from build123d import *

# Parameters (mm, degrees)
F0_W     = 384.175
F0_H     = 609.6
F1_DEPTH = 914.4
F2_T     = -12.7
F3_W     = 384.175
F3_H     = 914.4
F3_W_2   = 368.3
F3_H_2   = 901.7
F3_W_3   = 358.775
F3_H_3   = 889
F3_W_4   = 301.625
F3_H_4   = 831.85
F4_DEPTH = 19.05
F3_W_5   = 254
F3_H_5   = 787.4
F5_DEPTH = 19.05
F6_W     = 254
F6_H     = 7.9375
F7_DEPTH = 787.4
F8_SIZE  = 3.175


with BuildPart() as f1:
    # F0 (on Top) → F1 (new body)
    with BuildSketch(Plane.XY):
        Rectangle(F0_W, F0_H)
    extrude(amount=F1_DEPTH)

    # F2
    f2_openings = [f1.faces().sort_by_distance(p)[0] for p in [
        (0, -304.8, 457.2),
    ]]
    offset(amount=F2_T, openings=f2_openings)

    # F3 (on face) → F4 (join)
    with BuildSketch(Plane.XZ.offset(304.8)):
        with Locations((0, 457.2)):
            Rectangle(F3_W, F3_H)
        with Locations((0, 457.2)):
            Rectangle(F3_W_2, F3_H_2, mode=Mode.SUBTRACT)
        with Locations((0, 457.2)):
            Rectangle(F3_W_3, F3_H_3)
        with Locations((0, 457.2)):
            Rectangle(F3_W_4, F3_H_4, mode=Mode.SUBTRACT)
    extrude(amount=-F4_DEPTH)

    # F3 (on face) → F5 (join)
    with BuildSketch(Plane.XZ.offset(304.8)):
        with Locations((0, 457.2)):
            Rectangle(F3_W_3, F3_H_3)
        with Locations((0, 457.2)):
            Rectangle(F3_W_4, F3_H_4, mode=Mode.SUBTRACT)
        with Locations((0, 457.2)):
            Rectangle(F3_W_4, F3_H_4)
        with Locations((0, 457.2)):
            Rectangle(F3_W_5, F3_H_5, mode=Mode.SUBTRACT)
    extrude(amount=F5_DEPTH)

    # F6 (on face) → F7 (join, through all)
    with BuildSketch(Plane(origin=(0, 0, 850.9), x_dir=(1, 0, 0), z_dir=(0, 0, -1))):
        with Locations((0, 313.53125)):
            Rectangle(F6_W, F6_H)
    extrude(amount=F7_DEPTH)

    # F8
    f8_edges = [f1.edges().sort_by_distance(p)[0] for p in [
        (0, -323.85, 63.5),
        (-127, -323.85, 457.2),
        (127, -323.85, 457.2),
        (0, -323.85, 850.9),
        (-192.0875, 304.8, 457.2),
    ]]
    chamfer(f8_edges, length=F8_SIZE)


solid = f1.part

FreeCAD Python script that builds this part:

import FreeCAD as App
import Part
import Sketcher
Q = App.Units.Quantity


def edges_at(feature, points):
    """Names of the edges that pass closest to the given points."""
    edges = feature.Shape.Edges
    near = lambda p: min(range(len(edges)), key=lambda i: edges[i].distToShape(Part.Vertex(*p))[0])
    return sorted({f"Edge{near(p) + 1}" for p in points})


def faces_at(feature, points):
    """Names of the faces that lie closest to the given points."""
    faces = feature.Shape.Faces
    near = lambda p: min(range(len(faces)), key=lambda i: faces[i].distToShape(Part.Vertex(*p))[0])
    return sorted({f"Face{near(p) + 1}" for p in points})

doc = App.newDocument("Part")
params = doc.addObject("Spreadsheet::Sheet", "Params")
for row, (alias, value) in enumerate([
    ("sketch1_height", "24 in"),
    ("sketch1_width", "15.125 in"),
    ("pad1_length", "36 in"),
    ("thickness_wall", "0.5 in"),
    ("sketch2_height", "36 in"),
    ("sketch2_height2", "35 in"),
    ("sketch2_width", "14.5 in"),
    ("sketch2_height3", "35.5 in"),
    ("sketch2_height4", "32.75 in"),
    ("pad2_length", "0.75 in"),
    ("sketch3_width", "10 in"),
    ("sketch3_height", "35 in"),
    ("sketch3_height2", "31 in"),
    ("sketch3_width2", "14.125 in"),
    ("pad3_length", "0.75 in"),
    ("sketch4_width", "10 in"),
    ("sketch4_height", "0.3125 in"),
    ("chamfer_size", "0.125 in"),
], start=1):
    params.set(f"A{row}", alias)
    params.set(f"B{row}", "=" + value)
    params.setAlias(f"B{row}", alias)

body = doc.addObject("PartDesign::Body", "Body")

# Sketch on XY plane
sketch1 = doc.addObject("Sketcher::SketchObject", "Sketch")
body.addObject(sketch1)
sketch1.AttachmentSupport = (doc.XY_Plane, [""])
sketch1.MapMode = "FlatFace"
sketch1.addGeometry(Part.LineSegment(App.Vector(-192, 305, 0), App.Vector(-192, -305, 0)), False)
sketch1.addGeometry(Part.LineSegment(App.Vector(-192, -305, 0), App.Vector(192, -305, 0)), False)
sketch1.addGeometry(Part.LineSegment(App.Vector(192, -305, 0), App.Vector(192, 305, 0)), False)
sketch1.addGeometry(Part.LineSegment(App.Vector(192, 305, 0), App.Vector(-192, 305, 0)), False)
sketch1.addConstraint(Sketcher.Constraint("Coincident", 0, 2, 1, 1))
sketch1.addConstraint(Sketcher.Constraint("Coincident", 1, 2, 2, 1))
sketch1.addConstraint(Sketcher.Constraint("Coincident", 2, 2, 3, 1))
sketch1.addConstraint(Sketcher.Constraint("Coincident", 3, 2, 0, 1))
sketch1.addConstraint(Sketcher.Constraint("Vertical", 0))
sketch1.addConstraint(Sketcher.Constraint("Horizontal", 1))
sketch1.addConstraint(Sketcher.Constraint("Vertical", 2))
sketch1.addConstraint(Sketcher.Constraint("Horizontal", 3))
sketch1.addConstraint(Sketcher.Constraint("Symmetric", 0, 2, 2, 2, -1, 1))
sketch1.addConstraint(Sketcher.Constraint("DistanceY", 0, 2, 0, 1, Q("24 in")))
sketch1.addConstraint(Sketcher.Constraint("DistanceX", 1, 1, 1, 2, Q("15.125 in")))
sketch1.setExpression("Constraints[9]", "Params.sketch1_height")
sketch1.setExpression("Constraints[10]", "Params.sketch1_width")
pad1 = doc.addObject("PartDesign::Pad", "Pad")
body.addObject(pad1)
pad1.Profile = sketch1
pad1.setExpression("Length", "Params.pad1_length")
doc.recompute()

thickness = doc.addObject("PartDesign::Thickness", "Thickness")
body.addObject(thickness)
thickness.Base = (pad1, faces_at(pad1, [(0, -304.8, 457.2)]))
thickness.setExpression("Value", "Params.thickness_wall")
thickness.Reversed = True
thickness.Join = "Arc"

# Sketch on XZ plane
sketch2 = doc.addObject("Sketcher::SketchObject", "Sketch001")
body.addObject(sketch2)
sketch2.AttachmentSupport = (doc.XZ_Plane, [""])
sketch2.MapMode = "FlatFace"
sketch2.AttachmentOffset = App.Placement(App.Vector(0, 0, 12 * 25.4), App.Rotation())
sketch2.addGeometry(Part.LineSegment(App.Vector(-192, 914, 0), App.Vector(-192, 0, 0)), False)
sketch2.addGeometry(Part.LineSegment(App.Vector(-192, 0, 0), App.Vector(192, 0, 0)), False)
sketch2.addGeometry(Part.LineSegment(App.Vector(192, 0, 0), App.Vector(192, 914, 0)), False)
sketch2.addGeometry(Part.LineSegment(App.Vector(192, 914, 0), App.Vector(-192, 914, 0)), False)
sketch2.addGeometry(Part.LineSegment(App.Vector(184, 6, 0), App.Vector(-184, 6, 0)), False)
sketch2.addGeometry(Part.LineSegment(App.Vector(-184, 6, 0), App.Vector(-184, 908, 0)), False)
sketch2.addGeometry(Part.LineSegment(App.Vector(-184, 908, 0), App.Vector(184, 908, 0)), False)
sketch2.addGeometry(Part.LineSegment(App.Vector(184, 908, 0), App.Vector(184, 6, 0)), False)
sketch2.addGeometry(Part.LineSegment(App.Vector(-179, 902, 0), App.Vector(-179, 13, 0)), False)
sketch2.addGeometry(Part.LineSegment(App.Vector(-179, 13, 0), App.Vector(179, 13, 0)), False)
sketch2.addGeometry(Part.LineSegment(App.Vector(179, 13, 0), App.Vector(179, 902, 0)), False)
sketch2.addGeometry(Part.LineSegment(App.Vector(179, 902, 0), App.Vector(-179, 902, 0)), False)
sketch2.addGeometry(Part.LineSegment(App.Vector(151, 41, 0), App.Vector(-151, 41, 0)), False)
sketch2.addGeometry(Part.LineSegment(App.Vector(-151, 41, 0), App.Vector(-151, 873, 0)), False)
sketch2.addGeometry(Part.LineSegment(App.Vector(-151, 873, 0), App.Vector(151, 873, 0)), False)
sketch2.addGeometry(Part.LineSegment(App.Vector(151, 873, 0), App.Vector(151, 41, 0)), False)
sketch2.addConstraint(Sketcher.Constraint("Coincident", 0, 2, 1, 1))
sketch2.addConstraint(Sketcher.Constraint("Coincident", 1, 2, 2, 1))
sketch2.addConstraint(Sketcher.Constraint("Coincident", 2, 2, 3, 1))
sketch2.addConstraint(Sketcher.Constraint("Coincident", 3, 2, 0, 1))
sketch2.addConstraint(Sketcher.Constraint("Coincident", 4, 2, 5, 1))
sketch2.addConstraint(Sketcher.Constraint("Coincident", 5, 2, 6, 1))
sketch2.addConstraint(Sketcher.Constraint("Coincident", 6, 2, 7, 1))
sketch2.addConstraint(Sketcher.Constraint("Coincident", 7, 2, 4, 1))
sketch2.addConstraint(Sketcher.Constraint("Coincident", 8, 2, 9, 1))
sketch2.addConstraint(Sketcher.Constraint("Coincident", 9, 2, 10, 1))
sketch2.addConstraint(Sketcher.Constraint("Coincident", 10, 2, 11, 1))
sketch2.addConstraint(Sketcher.Constraint("Coincident", 11, 2, 8, 1))
sketch2.addConstraint(Sketcher.Constraint("Coincident", 12, 2, 13, 1))
sketch2.addConstraint(Sketcher.Constraint("Coincident", 13, 2, 14, 1))
sketch2.addConstraint(Sketcher.Constraint("Coincident", 14, 2, 15, 1))
sketch2.addConstraint(Sketcher.Constraint("Coincident", 15, 2, 12, 1))
sketch2.addConstraint(Sketcher.Constraint("Vertical", 0))
sketch2.addConstraint(Sketcher.Constraint("Horizontal", 1))
sketch2.addConstraint(Sketcher.Constraint("Vertical", 2))
sketch2.addConstraint(Sketcher.Constraint("Horizontal", 3))
sketch2.addConstraint(Sketcher.Constraint("Horizontal", 4))
sketch2.addConstraint(Sketcher.Constraint("Vertical", 5))
sketch2.addConstraint(Sketcher.Constraint("Horizontal", 6))
sketch2.addConstraint(Sketcher.Constraint("Vertical", 7))
sketch2.addConstraint(Sketcher.Constraint("Vertical", 8))
sketch2.addConstraint(Sketcher.Constraint("Horizontal", 9))
sketch2.addConstraint(Sketcher.Constraint("Vertical", 10))
sketch2.addConstraint(Sketcher.Constraint("Horizontal", 11))
sketch2.addConstraint(Sketcher.Constraint("Horizontal", 12))
sketch2.addConstraint(Sketcher.Constraint("Vertical", 13))
sketch2.addConstraint(Sketcher.Constraint("Horizontal", 14))
sketch2.addConstraint(Sketcher.Constraint("Vertical", 15))
sketch2.addConstraint(Sketcher.Constraint("Symmetric", 0, 2, 1, 2, -1, 1))
sketch2.addConstraint(Sketcher.Constraint("DistanceY", 0, 2, 0, 1, Q("36 in")))
sketch2.addConstraint(Sketcher.Constraint("DistanceY", 8, 2, 8, 1, Q("35 in")))
sketch2.addConstraint(Sketcher.Constraint("DistanceX", 4, 2, 4, 1, Q("14.5 in")))
sketch2.addConstraint(Sketcher.Constraint("DistanceY", 5, 1, 5, 2, Q("35.5 in")))
sketch2.addConstraint(Sketcher.Constraint("DistanceX", 12, 2, 9, 2, Q("13 in")))
sketch2.addConstraint(Sketcher.Constraint("DistanceX", 11, 2, 14, 2, Q("13 in")))
sketch2.addConstraint(Sketcher.Constraint("DistanceY", 13, 1, 13, 2, Q("32.75 in")))
sketch2.addConstraint(Sketcher.Constraint("DistanceY", -1, 1, 8, 2, Q("0.5 in")))
sketch2.addConstraint(Sketcher.Constraint("DistanceX", 0, 2, 8, 2, Q("0.5 in")))
sketch2.addConstraint(Sketcher.Constraint("DistanceX", 9, 2, 1, 2, Q("0.5 in")))
sketch2.addConstraint(Sketcher.Constraint("DistanceX", 1, 1, 1, 2, Q("15.125 in")))
sketch2.addConstraint(Sketcher.Constraint("DistanceX", 4, 2, -1, 1, Q("7.25 in")))
sketch2.addConstraint(Sketcher.Constraint("DistanceY", -1, 1, 4, 2, Q("0.25 in")))
sketch2.addConstraint(Sketcher.Constraint("DistanceY", -1, 1, 12, 2, Q("1.625 in")))
sketch2.setExpression("Constraints[33]", "Params.sketch2_height")
sketch2.setExpression("Constraints[34]", "Params.sketch2_height2")
sketch2.setExpression("Constraints[35]", "Params.sketch2_width")
sketch2.setExpression("Constraints[36]", "Params.sketch2_height3")
sketch2.setExpression("Constraints[39]", "Params.sketch2_height4")
pad2 = doc.addObject("PartDesign::Pad", "Pad001")
body.addObject(pad2)
pad2.Profile = sketch2
pad2.setExpression("Length", "Params.pad2_length")
pad2.Reversed = True

# Sketch on XZ plane
sketch3 = doc.addObject("Sketcher::SketchObject", "Sketch002")
body.addObject(sketch3)
sketch3.AttachmentSupport = (doc.XZ_Plane, [""])
sketch3.MapMode = "FlatFace"
sketch3.AttachmentOffset = App.Placement(App.Vector(0, 0, 12 * 25.4), App.Rotation())
sketch3.addGeometry(Part.LineSegment(App.Vector(-179, 902, 0), App.Vector(-179, 13, 0)), False)
sketch3.addGeometry(Part.LineSegment(App.Vector(-179, 13, 0), App.Vector(179, 13, 0)), False)
sketch3.addGeometry(Part.LineSegment(App.Vector(179, 13, 0), App.Vector(179, 902, 0)), False)
sketch3.addGeometry(Part.LineSegment(App.Vector(179, 902, 0), App.Vector(-179, 902, 0)), False)
sketch3.addGeometry(Part.LineSegment(App.Vector(127, 64, 0), App.Vector(-127, 64, 0)), False)
sketch3.addGeometry(Part.LineSegment(App.Vector(-127, 64, 0), App.Vector(-127, 851, 0)), False)
sketch3.addGeometry(Part.LineSegment(App.Vector(-127, 851, 0), App.Vector(127, 851, 0)), False)
sketch3.addGeometry(Part.LineSegment(App.Vector(127, 851, 0), App.Vector(127, 64, 0)), False)
sketch3.addConstraint(Sketcher.Constraint("Coincident", 0, 2, 1, 1))
sketch3.addConstraint(Sketcher.Constraint("Coincident", 1, 2, 2, 1))
sketch3.addConstraint(Sketcher.Constraint("Coincident", 2, 2, 3, 1))
sketch3.addConstraint(Sketcher.Constraint("Coincident", 3, 2, 0, 1))
sketch3.addConstraint(Sketcher.Constraint("Coincident", 4, 2, 5, 1))
sketch3.addConstraint(Sketcher.Constraint("Coincident", 5, 2, 6, 1))
sketch3.addConstraint(Sketcher.Constraint("Coincident", 6, 2, 7, 1))
sketch3.addConstraint(Sketcher.Constraint("Coincident", 7, 2, 4, 1))
sketch3.addConstraint(Sketcher.Constraint("Vertical", 0))
sketch3.addConstraint(Sketcher.Constraint("Horizontal", 1))
sketch3.addConstraint(Sketcher.Constraint("Vertical", 2))
sketch3.addConstraint(Sketcher.Constraint("Horizontal", 3))
sketch3.addConstraint(Sketcher.Constraint("Horizontal", 4))
sketch3.addConstraint(Sketcher.Constraint("Vertical", 5))
sketch3.addConstraint(Sketcher.Constraint("Horizontal", 6))
sketch3.addConstraint(Sketcher.Constraint("Vertical", 7))
sketch3.addConstraint(Sketcher.Constraint("DistanceX", 4, 2, 4, 1, Q("10 in")))
sketch3.addConstraint(Sketcher.Constraint("DistanceY", 0, 2, 0, 1, Q("35 in")))
sketch3.addConstraint(Sketcher.Constraint("DistanceY", 5, 1, 5, 2, Q("31 in")))
sketch3.addConstraint(Sketcher.Constraint("DistanceX", 4, 2, -1, 1, Q("5 in")))
sketch3.addConstraint(Sketcher.Constraint("DistanceY", 0, 2, 4, 2, Q("2 in")))
sketch3.addConstraint(Sketcher.Constraint("DistanceY", -1, 1, 0, 2, Q("0.5 in")))
sketch3.addConstraint(Sketcher.Constraint("DistanceX", 1, 1, 1, 2, Q("14.125 in")))
sketch3.addConstraint(Sketcher.Constraint("DistanceX", 0, 2, -1, 1, Q("7.0625 in")))
sketch3.setExpression("Constraints[16]", "Params.sketch3_width")
sketch3.setExpression("Constraints[17]", "Params.sketch3_height")
sketch3.setExpression("Constraints[18]", "Params.sketch3_height2")
sketch3.setExpression("Constraints[22]", "Params.sketch3_width2")
pad3 = doc.addObject("PartDesign::Pad", "Pad002")
body.addObject(pad3)
pad3.Profile = sketch3
pad3.setExpression("Length", "Params.pad3_length")

# Sketch on XY plane
sketch4 = doc.addObject("Sketcher::SketchObject", "Sketch003")
body.addObject(sketch4)
sketch4.AttachmentSupport = (doc.XY_Plane, [""])
sketch4.MapMode = "FlatFace"
sketch4.AttachmentOffset = App.Placement(App.Vector(0, 0, 33.5 * 25.4), App.Rotation())
sketch4.addGeometry(Part.LineSegment(App.Vector(-127, -318, 0), App.Vector(-127, -310, 0)), False)
sketch4.addGeometry(Part.LineSegment(App.Vector(-127, -310, 0), App.Vector(127, -310, 0)), False)
sketch4.addGeometry(Part.LineSegment(App.Vector(127, -310, 0), App.Vector(127, -318, 0)), False)
sketch4.addGeometry(Part.LineSegment(App.Vector(127, -318, 0), App.Vector(-127, -318, 0)), False)
sketch4.addConstraint(Sketcher.Constraint("Coincident", 0, 2, 1, 1))
sketch4.addConstraint(Sketcher.Constraint("Coincident", 1, 2, 2, 1))
sketch4.addConstraint(Sketcher.Constraint("Coincident", 2, 2, 3, 1))
sketch4.addConstraint(Sketcher.Constraint("Coincident", 3, 2, 0, 1))
sketch4.addConstraint(Sketcher.Constraint("Vertical", 0))
sketch4.addConstraint(Sketcher.Constraint("Horizontal", 1))
sketch4.addConstraint(Sketcher.Constraint("Vertical", 2))
sketch4.addConstraint(Sketcher.Constraint("Horizontal", 3))
sketch4.addConstraint(Sketcher.Constraint("DistanceX", 1, 1, 1, 2, Q("10 in")))
sketch4.addConstraint(Sketcher.Constraint("DistanceX", 0, 2, -1, 1, Q("5 in")))
sketch4.addConstraint(Sketcher.Constraint("DistanceY", 2, 2, -1, 1, Q("12.5 in")))
sketch4.addConstraint(Sketcher.Constraint("DistanceY", 0, 1, 0, 2, Q("0.3125 in")))
sketch4.setExpression("Constraints[8]", "Params.sketch4_width")
sketch4.setExpression("Constraints[11]", "Params.sketch4_height")
pad4 = doc.addObject("PartDesign::Pad", "Pad003")
body.addObject(pad4)
pad4.Profile = sketch4
pad4.Type = "UpToLast"
pad4.Reversed = True
doc.recompute()

chamfer = doc.addObject("PartDesign::Chamfer", "Chamfer")
body.addObject(chamfer)
chamfer.Base = (pad4, edges_at(pad4, [
    (0, -323.85, 63.5),
    (-127, -323.85, 457.2),
    (127, -323.85, 457.2),
    (0, -323.85, 850.9),
    (-192.088, 304.8, 457.2),
]))
chamfer.setExpression("Size", "Params.chamfer_size")

doc.recompute()
